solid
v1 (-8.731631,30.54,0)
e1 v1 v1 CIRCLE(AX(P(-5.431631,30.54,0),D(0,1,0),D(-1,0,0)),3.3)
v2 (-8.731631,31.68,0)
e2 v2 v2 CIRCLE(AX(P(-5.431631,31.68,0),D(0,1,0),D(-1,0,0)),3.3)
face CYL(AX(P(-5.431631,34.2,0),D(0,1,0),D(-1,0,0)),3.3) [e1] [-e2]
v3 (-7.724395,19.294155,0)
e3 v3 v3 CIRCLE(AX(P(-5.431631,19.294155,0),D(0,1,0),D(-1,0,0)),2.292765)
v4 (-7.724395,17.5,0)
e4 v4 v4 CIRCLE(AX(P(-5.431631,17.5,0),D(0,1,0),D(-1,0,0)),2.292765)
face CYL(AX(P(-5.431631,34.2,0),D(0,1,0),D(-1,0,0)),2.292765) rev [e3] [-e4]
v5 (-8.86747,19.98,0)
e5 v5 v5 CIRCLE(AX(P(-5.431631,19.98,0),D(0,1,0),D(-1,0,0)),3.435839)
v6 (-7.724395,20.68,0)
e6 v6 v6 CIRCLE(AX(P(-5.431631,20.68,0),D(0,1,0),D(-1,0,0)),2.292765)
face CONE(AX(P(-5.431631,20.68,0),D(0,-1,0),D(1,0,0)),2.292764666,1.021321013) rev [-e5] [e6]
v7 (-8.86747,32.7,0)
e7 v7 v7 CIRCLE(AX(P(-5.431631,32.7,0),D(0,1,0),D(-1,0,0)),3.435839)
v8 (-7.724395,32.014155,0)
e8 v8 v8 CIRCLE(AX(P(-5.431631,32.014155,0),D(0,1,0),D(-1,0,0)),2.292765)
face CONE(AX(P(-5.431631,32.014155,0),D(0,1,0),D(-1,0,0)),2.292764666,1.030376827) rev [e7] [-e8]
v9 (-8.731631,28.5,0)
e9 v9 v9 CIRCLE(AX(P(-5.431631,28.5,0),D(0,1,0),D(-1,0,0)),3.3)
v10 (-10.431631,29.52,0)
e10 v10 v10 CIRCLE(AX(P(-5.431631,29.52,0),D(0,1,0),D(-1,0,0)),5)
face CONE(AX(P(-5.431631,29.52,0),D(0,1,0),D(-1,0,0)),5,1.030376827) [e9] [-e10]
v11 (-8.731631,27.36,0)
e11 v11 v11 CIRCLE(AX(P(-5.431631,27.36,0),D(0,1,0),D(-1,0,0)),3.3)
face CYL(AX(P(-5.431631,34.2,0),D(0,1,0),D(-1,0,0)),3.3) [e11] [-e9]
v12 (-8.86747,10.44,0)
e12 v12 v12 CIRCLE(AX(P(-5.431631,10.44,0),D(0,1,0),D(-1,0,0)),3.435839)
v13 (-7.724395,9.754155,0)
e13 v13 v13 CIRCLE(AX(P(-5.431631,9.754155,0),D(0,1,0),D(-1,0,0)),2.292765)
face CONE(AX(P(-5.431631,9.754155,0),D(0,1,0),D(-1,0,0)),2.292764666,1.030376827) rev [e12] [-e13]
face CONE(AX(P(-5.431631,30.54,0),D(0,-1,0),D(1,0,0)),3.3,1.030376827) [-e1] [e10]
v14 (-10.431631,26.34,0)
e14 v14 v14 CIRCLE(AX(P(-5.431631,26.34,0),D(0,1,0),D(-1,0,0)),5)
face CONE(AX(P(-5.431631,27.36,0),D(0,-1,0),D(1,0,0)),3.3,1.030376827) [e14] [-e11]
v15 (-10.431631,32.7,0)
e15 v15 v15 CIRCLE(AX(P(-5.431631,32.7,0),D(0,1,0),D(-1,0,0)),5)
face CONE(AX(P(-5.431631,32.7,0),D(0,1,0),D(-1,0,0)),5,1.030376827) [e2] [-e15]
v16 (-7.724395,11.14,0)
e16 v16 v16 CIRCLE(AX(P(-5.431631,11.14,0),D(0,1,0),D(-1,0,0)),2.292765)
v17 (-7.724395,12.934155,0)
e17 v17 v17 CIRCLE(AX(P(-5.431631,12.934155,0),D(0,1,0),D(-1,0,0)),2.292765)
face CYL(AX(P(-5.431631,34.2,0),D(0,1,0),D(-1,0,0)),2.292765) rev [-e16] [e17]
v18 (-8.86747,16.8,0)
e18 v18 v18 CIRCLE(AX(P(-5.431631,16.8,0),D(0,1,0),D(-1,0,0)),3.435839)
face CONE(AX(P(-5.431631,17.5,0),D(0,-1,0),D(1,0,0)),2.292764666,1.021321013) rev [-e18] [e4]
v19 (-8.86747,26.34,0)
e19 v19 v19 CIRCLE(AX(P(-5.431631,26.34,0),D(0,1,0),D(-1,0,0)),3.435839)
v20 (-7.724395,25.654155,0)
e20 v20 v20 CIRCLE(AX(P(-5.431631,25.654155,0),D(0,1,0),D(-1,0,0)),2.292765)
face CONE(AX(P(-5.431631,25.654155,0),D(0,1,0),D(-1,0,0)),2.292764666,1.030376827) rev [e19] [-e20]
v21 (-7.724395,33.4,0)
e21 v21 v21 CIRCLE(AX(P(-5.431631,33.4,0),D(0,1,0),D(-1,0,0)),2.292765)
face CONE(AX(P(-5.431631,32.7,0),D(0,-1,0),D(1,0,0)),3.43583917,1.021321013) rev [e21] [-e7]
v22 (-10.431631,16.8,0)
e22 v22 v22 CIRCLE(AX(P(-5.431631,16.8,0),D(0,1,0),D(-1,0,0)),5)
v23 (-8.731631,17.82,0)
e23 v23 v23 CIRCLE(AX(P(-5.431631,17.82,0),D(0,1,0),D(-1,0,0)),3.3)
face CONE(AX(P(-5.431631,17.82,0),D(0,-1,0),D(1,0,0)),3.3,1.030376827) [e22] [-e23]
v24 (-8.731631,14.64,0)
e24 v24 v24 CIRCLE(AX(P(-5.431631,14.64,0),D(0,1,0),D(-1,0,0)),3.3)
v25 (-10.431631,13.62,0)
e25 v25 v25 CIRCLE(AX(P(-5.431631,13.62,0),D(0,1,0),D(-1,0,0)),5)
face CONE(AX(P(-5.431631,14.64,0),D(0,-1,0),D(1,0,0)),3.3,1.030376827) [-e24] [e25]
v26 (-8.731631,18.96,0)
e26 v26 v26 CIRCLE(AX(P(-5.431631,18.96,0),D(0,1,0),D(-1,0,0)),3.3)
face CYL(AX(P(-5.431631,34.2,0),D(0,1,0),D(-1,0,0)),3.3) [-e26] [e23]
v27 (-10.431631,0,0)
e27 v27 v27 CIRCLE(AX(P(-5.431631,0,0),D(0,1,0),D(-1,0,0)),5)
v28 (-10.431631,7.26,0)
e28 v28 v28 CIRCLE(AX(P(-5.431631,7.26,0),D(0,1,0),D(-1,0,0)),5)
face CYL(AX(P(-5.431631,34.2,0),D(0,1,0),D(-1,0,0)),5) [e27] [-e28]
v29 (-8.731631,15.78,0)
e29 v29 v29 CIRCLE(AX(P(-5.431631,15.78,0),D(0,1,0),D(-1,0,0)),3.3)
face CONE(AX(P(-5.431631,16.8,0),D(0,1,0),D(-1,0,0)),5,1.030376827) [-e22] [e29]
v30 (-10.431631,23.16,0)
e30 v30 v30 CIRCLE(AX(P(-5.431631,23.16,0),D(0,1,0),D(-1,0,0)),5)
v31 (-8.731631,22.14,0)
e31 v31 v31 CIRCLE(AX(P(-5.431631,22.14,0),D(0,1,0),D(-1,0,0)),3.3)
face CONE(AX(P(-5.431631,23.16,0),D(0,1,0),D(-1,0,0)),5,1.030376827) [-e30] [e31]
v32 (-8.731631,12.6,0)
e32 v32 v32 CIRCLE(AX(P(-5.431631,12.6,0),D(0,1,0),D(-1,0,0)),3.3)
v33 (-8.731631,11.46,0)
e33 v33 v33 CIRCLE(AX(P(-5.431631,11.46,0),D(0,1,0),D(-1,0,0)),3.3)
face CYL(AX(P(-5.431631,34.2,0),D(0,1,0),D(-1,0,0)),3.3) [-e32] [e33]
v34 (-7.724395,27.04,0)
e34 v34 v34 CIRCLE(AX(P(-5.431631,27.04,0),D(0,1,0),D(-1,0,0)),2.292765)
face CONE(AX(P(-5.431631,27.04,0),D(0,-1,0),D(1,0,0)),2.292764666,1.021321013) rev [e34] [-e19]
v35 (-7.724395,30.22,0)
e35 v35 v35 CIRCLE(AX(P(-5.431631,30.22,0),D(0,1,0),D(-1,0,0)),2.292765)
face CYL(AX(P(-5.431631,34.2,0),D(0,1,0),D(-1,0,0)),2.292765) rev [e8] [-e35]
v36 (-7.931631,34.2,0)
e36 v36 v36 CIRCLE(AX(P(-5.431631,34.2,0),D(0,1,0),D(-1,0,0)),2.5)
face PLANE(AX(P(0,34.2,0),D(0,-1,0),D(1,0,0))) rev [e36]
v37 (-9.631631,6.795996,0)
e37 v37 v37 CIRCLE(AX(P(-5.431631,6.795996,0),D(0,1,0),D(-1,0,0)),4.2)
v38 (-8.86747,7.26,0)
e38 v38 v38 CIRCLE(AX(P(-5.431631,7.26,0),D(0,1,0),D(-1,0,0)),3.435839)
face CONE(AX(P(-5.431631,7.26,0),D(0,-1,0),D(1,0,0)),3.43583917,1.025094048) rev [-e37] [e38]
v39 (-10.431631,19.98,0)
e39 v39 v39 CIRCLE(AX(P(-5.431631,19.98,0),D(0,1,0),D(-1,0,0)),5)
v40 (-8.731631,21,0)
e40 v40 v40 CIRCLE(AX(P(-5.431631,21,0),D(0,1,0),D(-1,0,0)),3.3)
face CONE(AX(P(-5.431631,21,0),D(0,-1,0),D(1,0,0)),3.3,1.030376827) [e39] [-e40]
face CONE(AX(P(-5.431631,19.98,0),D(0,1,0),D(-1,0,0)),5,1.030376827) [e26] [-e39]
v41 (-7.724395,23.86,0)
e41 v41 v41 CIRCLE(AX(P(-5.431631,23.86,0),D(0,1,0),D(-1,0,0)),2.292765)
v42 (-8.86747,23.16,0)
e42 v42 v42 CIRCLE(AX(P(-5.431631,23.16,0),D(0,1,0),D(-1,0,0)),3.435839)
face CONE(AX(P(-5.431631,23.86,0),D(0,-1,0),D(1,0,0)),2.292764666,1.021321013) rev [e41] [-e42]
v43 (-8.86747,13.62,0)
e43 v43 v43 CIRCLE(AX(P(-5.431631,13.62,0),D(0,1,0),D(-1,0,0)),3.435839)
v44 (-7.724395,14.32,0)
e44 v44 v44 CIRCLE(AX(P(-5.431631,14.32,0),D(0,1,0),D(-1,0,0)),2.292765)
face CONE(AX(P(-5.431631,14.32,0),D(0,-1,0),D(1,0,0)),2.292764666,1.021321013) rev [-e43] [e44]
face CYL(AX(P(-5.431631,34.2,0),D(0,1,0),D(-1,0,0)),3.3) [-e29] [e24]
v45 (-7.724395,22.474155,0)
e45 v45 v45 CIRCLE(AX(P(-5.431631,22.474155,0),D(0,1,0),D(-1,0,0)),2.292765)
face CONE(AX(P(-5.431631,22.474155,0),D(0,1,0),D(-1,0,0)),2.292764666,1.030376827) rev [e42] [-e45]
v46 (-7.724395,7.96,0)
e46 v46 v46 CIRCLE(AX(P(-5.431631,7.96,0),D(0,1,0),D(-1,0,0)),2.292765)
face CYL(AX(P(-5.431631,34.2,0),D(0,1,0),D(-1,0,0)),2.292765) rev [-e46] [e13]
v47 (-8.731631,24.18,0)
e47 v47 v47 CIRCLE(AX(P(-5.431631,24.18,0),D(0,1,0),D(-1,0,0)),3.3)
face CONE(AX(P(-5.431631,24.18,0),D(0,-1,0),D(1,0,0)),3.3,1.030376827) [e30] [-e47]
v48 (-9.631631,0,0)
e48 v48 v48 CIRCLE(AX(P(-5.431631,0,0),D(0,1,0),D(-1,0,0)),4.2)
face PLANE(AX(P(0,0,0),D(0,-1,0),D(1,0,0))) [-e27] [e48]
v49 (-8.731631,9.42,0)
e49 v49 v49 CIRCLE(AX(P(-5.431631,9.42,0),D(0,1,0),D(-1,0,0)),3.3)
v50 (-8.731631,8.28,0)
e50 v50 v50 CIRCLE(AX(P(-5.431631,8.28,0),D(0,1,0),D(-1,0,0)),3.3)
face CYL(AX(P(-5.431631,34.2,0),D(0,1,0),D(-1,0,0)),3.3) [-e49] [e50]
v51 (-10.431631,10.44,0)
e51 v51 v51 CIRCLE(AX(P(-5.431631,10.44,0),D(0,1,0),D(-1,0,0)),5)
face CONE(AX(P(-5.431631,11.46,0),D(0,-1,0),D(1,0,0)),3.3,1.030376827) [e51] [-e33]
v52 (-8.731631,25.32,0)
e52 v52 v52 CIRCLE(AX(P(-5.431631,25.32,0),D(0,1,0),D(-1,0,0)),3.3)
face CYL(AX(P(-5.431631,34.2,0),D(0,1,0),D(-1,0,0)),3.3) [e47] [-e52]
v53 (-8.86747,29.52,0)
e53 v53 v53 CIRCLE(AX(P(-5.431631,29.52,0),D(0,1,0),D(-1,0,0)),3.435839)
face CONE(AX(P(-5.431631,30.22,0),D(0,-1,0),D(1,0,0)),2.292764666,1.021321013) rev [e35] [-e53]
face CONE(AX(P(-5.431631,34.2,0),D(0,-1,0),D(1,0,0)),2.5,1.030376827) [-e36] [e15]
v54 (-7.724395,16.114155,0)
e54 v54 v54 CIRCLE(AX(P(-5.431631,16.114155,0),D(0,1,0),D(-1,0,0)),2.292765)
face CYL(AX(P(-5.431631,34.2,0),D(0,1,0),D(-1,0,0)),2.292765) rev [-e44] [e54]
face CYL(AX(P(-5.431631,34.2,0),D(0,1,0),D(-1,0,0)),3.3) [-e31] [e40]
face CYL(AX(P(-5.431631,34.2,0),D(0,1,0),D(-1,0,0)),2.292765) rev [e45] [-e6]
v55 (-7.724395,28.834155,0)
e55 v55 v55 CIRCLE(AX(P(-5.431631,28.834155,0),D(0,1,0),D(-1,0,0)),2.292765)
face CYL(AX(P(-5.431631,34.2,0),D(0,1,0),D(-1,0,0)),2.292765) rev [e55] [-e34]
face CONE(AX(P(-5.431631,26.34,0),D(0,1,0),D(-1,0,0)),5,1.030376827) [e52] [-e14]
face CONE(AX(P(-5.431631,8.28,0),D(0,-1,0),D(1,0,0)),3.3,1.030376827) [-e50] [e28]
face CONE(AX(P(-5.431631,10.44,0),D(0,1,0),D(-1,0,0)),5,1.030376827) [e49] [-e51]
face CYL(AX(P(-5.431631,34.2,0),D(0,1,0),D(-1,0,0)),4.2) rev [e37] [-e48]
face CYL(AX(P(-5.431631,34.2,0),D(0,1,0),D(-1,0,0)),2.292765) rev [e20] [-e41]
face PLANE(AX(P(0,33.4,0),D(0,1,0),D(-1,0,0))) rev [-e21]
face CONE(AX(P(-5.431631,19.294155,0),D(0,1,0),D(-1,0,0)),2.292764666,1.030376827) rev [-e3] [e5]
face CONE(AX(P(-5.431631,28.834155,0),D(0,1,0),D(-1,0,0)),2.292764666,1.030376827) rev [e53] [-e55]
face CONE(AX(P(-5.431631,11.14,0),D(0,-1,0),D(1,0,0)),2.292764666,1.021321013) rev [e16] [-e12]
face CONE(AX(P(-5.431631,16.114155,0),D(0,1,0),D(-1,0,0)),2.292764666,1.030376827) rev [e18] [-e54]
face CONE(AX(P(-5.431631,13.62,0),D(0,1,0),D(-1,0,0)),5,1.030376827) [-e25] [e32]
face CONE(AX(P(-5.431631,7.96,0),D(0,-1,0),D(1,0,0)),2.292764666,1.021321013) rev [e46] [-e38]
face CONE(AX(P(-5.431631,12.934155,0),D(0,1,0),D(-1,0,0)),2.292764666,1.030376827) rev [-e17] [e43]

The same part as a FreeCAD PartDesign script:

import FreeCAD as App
import Part
import Sketcher

V = App.Vector


def add_polygon(sketch, points):
    """Adds a closed chain of lines whose ends are joined by coincident constraints."""
    first, n = sketch.GeometryCount, len(points)
    for a, b in zip(points, points[1:] + points[:1]):
        sketch.addGeometry(Part.LineSegment(App.Vector(*a, 0), App.Vector(*b, 0)), False)
    for i in range(n):
        sketch.addConstraint(Sketcher.Constraint("Coincident", first + i, 2, first + (i + 1) % n, 1))

doc = App.newDocument("Part")
body = doc.addObject("PartDesign::Body", "Body")

sketch1 = body.newObject("Sketcher::SketchObject", "Sketch")
sketch1.AttachmentSupport = (doc.getObject("XY_Plane"), [""])
sketch1.MapMode = "FlatFace"
add_polygon(sketch1, [(-2.1, 31.7), (-0.4, 32.7), (-2.9, 34.2), (-5.4, 34.2), (-5.4, 33.4), (-3.1, 33.4), (-2, 32.7), (-3.1, 32), (-3.1, 30.2), (-2, 29.5), (-3.1, 28.8), (-3.1, 27), (-2, 26.3), (-3.1, 25.7), (-3.1, 23.9), (-2, 23.2), (-3.1, 22.5), (-3.1, 20.7), (-2, 20), (-3.1, 19.3), (-3.1, 17.5), (-2, 16.8), (-3.1, 16.1), (-3.1, 14.3), (-2, 13.6), (-3.1, 12.9), (-3.1, 11.1), (-2, 10.4), (-3.1, 9.8), (-3.1, 8), (-2, 7.3), (-1.2, 6.8), (-1.2, 0), (-0.4, 0), (-0.4, 7.3), (-2.1, 8.3), (-2.1, 9.4), (-0.4, 10.4), (-2.1, 11.5), (-2.1, 12.6), (-0.4, 13.6), (-2.1, 14.6), (-2.1, 15.8), (-0.4, 16.8), (-2.1, 17.8), (-2.1, 19), (-0.4, 20), (-2.1, 21), (-2.1, 22.1), (-0.4, 23.2), (-2.1, 24.2), (-2.1, 25.3), (-0.4, 26.3), (-2.1, 27.4), (-2.1, 28.5), (-0.4, 29.5), (-2.1, 30.5)])
sketch1.addGeometry(Part.LineSegment(V(-5.4, 34.2, 0), V(-5.4, 0, 0)), True)
sketch1.addConstraint([
    Sketcher.Constraint("Horizontal", 2),
    Sketcher.Constraint("Vertical", 3),
    Sketcher.Constraint("Horizontal", 4),
    Sketcher.Constraint("Vertical", 7),
    Sketcher.Constraint("Vertical", 10),
    Sketcher.Constraint("Vertical", 13),
    Sketcher.Constraint("Vertical", 16),
    Sketcher.Constraint("Vertical", 19),
    Sketcher.Constraint("Vertical", 22),
    Sketcher.Constraint("Vertical", 25),
    Sketcher.Constraint("Vertical", 28),
    Sketcher.Constraint("Vertical", 31),
    Sketcher.Constraint("Horizontal", 32),
    Sketcher.Constraint("Vertical", 33),
    Sketcher.Constraint("Vertical", 35),
    Sketcher.Constraint("Vertical", 38),
    Sketcher.Constraint("Vertical", 41),
    Sketcher.Constraint("Vertical", 44),
    Sketcher.Constraint("Vertical", 47),
    Sketcher.Constraint("Vertical", 50),
    Sketcher.Constraint("Vertical", 53),
    Sketcher.Constraint("Vertical", 56),
    Sketcher.Constraint("Vertical", 57),
    Sketcher.Constraint("Coincident", 57, 1, 2, 2),
    Sketcher.Constraint("PointOnObject", 31, 2, -1),
    Sketcher.Constraint("PointOnObject", 57, 2, -1),
    Sketcher.Constraint("Parallel", 0, 6),
    Sketcher.Constraint("Parallel", 5, 8),
    Sketcher.Constraint("Parallel", 6, 9),
    Sketcher.Constraint("Parallel", 8, 11),
    Sketcher.Constraint("Parallel", 9, 12),
    Sketcher.Constraint("Parallel", 11, 14),
    Sketcher.Constraint("Parallel", 12, 15),
    Sketcher.Constraint("Parallel", 14, 17),
    Sketcher.Constraint("Parallel", 15, 18),
    Sketcher.Constraint("Parallel", 17, 20),
    Sketcher.Constraint("Parallel", 18, 21),
    Sketcher.Constraint("Parallel", 20, 23),
    Sketcher.Constraint("Parallel", 21, 24),
    Sketcher.Constraint("Parallel", 23, 26),
    Sketcher.Constraint("Parallel", 24, 27),
    Sketcher.Constraint("Parallel", 26, 29),
    Sketcher.Constraint("Parallel", 1, 34),
    Sketcher.Constraint("Parallel", 27, 36),
    Sketcher.Constraint("Parallel", 34, 37),
    Sketcher.Constraint("Parallel", 36, 39),
    Sketcher.Constraint("Parallel", 37, 40),
    Sketcher.Constraint("Parallel", 39, 42),
    Sketcher.Constraint("Parallel", 40, 43),
    Sketcher.Constraint("Parallel", 42, 45),
    Sketcher.Constraint("Parallel", 43, 46),
    Sketcher.Constraint("Parallel", 45, 48),
    Sketcher.Constraint("Parallel", 46, 49),
    Sketcher.Constraint("Parallel", 48, 51),
    Sketcher.Constraint("Parallel", 49, 52),
    Sketcher.Constraint("Parallel", 51, 54),
    Sketcher.Constraint("Parallel", 52, 55),
    Sketcher.Constraint("Horizontal", 0, 2, 5, 2),
    Sketcher.Constraint("Horizontal", 29, 2, 33, 2),
    Sketcher.Constraint("Horizontal", 26, 2, 36, 2),
    Sketcher.Constraint("Horizontal", 23, 2, 39, 2),
    Sketcher.Constraint("Horizontal", 20, 2, 42, 2),
    Sketcher.Constraint("Horizontal", 17, 2, 45, 2),
    Sketcher.Constraint("Horizontal", 14, 2, 48, 2),
    Sketcher.Constraint("Horizontal", 11, 2, 51, 2),
    Sketcher.Constraint("Horizontal", 8, 2, 54, 2),
    Sketcher.Constraint("Vertical", 4, 2, 6, 2),
    Sketcher.Constraint("Vertical", 5, 2, 8, 2),
    Sketcher.Constraint("Vertical", 7, 2, 9, 2),
    Sketcher.Constraint("Vertical", 8, 2, 11, 2),
    Sketcher.Constraint("Vertical", 10, 2, 12, 2),
    Sketcher.Constraint("Vertical", 11, 2, 14, 2),
    Sketcher.Constraint("Vertical", 13, 2, 15, 2),
    Sketcher.Constraint("Vertical", 14, 2, 17, 2),
    Sketcher.Constraint("Vertical", 16, 2, 18, 2),
    Sketcher.Constraint("Vertical", 17, 2, 20, 2),
    Sketcher.Constraint("Vertical", 19, 2, 21, 2),
    Sketcher.Constraint("Vertical", 20, 2, 23, 2),
    Sketcher.Constraint("Vertical", 22, 2, 24, 2),
    Sketcher.Constraint("Vertical", 23, 2, 26, 2),
    Sketcher.Constraint("Vertical", 25, 2, 27, 2),
    Sketcher.Constraint("Vertical", 26, 2, 29, 2),
    Sketcher.Constraint("Vertical", 0, 2, 32, 2),
    Sketcher.Constraint("Vertical", 33, 2, 36, 2),
    Sketcher.Constraint("Vertical", 35, 2, 37, 2),
    Sketcher.Constraint("Vertical", 36, 2, 39, 2),
    Sketcher.Constraint("Vertical", 38, 2, 40, 2),
    Sketcher.Constraint("Vertical", 39, 2, 42, 2),
    Sketcher.Constraint("Vertical", 41, 2, 43, 2),
    Sketcher.Constraint("Vertical", 42, 2, 45, 2),
    Sketcher.Constraint("Vertical", 44, 2, 46, 2),
    Sketcher.Constraint("Vertical", 45, 2, 48, 2),
    Sketcher.Constraint("Vertical", 47, 2, 49, 2),
    Sketcher.Constraint("Vertical", 48, 2, 51, 2),
    Sketcher.Constraint("Vertical", 50, 2, 52, 2),
    Sketcher.Constraint("Vertical", 51, 2, 54, 2),
    Sketcher.Constraint("Vertical", 53, 2, 55, 2),
    Sketcher.Constraint("Equal", 32, 3),
    Sketcher.Constraint("Equal", 7, 10),
    Sketcher.Constraint("Equal", 10, 13),
    Sketcher.Constraint("Equal", 13, 16),
    Sketcher.Constraint("Equal", 16, 19),
    Sketcher.Constraint("Equal", 19, 22),
    Sketcher.Constraint("Equal", 22, 25),
    Sketcher.Constraint("Equal", 25, 28),
    Sketcher.Constraint("Equal", 0, 34),
    Sketcher.Constraint("DistanceX", 2, 2, 2, 1, 2.5),
    Sketcher.Constraint("DistanceX", 32, 1, 32, 2, 0.8),
    Sketcher.Constraint("DistanceY", 57, 2, 57, 1, 34.2),
    Sketcher.Constraint("DistanceY", -1, 1, 46, 2, 21.0),
    Sketcher.Constraint("DistanceX", 2, 2, 0, 2, 5.0),
    Sketcher.Constraint("DistanceY", 33, 1, 33, 2, 7.26),
    Sketcher.Constraint("DistanceY", 35, 1, 35, 2, 1.14),
    Sketcher.Constraint("Distance", 5, 1.34038),
    Sketcher.Constraint("DistanceX", 4, 1, 4, 2, 2.292765),
    Sketcher.Constraint("DistanceY", 31, 2, 31, 1, 6.795996),
    Sketcher.Constraint("DistanceX", 0, 2, -1, 1, 0.431631),
])
revolution = body.newObject("PartDesign::Revolution", "Revolution")
revolution.Profile = sketch1
revolution.ReferenceAxis = (sketch1, ["Axis0"])
revolution.Angle = 360

doc.recompute()
